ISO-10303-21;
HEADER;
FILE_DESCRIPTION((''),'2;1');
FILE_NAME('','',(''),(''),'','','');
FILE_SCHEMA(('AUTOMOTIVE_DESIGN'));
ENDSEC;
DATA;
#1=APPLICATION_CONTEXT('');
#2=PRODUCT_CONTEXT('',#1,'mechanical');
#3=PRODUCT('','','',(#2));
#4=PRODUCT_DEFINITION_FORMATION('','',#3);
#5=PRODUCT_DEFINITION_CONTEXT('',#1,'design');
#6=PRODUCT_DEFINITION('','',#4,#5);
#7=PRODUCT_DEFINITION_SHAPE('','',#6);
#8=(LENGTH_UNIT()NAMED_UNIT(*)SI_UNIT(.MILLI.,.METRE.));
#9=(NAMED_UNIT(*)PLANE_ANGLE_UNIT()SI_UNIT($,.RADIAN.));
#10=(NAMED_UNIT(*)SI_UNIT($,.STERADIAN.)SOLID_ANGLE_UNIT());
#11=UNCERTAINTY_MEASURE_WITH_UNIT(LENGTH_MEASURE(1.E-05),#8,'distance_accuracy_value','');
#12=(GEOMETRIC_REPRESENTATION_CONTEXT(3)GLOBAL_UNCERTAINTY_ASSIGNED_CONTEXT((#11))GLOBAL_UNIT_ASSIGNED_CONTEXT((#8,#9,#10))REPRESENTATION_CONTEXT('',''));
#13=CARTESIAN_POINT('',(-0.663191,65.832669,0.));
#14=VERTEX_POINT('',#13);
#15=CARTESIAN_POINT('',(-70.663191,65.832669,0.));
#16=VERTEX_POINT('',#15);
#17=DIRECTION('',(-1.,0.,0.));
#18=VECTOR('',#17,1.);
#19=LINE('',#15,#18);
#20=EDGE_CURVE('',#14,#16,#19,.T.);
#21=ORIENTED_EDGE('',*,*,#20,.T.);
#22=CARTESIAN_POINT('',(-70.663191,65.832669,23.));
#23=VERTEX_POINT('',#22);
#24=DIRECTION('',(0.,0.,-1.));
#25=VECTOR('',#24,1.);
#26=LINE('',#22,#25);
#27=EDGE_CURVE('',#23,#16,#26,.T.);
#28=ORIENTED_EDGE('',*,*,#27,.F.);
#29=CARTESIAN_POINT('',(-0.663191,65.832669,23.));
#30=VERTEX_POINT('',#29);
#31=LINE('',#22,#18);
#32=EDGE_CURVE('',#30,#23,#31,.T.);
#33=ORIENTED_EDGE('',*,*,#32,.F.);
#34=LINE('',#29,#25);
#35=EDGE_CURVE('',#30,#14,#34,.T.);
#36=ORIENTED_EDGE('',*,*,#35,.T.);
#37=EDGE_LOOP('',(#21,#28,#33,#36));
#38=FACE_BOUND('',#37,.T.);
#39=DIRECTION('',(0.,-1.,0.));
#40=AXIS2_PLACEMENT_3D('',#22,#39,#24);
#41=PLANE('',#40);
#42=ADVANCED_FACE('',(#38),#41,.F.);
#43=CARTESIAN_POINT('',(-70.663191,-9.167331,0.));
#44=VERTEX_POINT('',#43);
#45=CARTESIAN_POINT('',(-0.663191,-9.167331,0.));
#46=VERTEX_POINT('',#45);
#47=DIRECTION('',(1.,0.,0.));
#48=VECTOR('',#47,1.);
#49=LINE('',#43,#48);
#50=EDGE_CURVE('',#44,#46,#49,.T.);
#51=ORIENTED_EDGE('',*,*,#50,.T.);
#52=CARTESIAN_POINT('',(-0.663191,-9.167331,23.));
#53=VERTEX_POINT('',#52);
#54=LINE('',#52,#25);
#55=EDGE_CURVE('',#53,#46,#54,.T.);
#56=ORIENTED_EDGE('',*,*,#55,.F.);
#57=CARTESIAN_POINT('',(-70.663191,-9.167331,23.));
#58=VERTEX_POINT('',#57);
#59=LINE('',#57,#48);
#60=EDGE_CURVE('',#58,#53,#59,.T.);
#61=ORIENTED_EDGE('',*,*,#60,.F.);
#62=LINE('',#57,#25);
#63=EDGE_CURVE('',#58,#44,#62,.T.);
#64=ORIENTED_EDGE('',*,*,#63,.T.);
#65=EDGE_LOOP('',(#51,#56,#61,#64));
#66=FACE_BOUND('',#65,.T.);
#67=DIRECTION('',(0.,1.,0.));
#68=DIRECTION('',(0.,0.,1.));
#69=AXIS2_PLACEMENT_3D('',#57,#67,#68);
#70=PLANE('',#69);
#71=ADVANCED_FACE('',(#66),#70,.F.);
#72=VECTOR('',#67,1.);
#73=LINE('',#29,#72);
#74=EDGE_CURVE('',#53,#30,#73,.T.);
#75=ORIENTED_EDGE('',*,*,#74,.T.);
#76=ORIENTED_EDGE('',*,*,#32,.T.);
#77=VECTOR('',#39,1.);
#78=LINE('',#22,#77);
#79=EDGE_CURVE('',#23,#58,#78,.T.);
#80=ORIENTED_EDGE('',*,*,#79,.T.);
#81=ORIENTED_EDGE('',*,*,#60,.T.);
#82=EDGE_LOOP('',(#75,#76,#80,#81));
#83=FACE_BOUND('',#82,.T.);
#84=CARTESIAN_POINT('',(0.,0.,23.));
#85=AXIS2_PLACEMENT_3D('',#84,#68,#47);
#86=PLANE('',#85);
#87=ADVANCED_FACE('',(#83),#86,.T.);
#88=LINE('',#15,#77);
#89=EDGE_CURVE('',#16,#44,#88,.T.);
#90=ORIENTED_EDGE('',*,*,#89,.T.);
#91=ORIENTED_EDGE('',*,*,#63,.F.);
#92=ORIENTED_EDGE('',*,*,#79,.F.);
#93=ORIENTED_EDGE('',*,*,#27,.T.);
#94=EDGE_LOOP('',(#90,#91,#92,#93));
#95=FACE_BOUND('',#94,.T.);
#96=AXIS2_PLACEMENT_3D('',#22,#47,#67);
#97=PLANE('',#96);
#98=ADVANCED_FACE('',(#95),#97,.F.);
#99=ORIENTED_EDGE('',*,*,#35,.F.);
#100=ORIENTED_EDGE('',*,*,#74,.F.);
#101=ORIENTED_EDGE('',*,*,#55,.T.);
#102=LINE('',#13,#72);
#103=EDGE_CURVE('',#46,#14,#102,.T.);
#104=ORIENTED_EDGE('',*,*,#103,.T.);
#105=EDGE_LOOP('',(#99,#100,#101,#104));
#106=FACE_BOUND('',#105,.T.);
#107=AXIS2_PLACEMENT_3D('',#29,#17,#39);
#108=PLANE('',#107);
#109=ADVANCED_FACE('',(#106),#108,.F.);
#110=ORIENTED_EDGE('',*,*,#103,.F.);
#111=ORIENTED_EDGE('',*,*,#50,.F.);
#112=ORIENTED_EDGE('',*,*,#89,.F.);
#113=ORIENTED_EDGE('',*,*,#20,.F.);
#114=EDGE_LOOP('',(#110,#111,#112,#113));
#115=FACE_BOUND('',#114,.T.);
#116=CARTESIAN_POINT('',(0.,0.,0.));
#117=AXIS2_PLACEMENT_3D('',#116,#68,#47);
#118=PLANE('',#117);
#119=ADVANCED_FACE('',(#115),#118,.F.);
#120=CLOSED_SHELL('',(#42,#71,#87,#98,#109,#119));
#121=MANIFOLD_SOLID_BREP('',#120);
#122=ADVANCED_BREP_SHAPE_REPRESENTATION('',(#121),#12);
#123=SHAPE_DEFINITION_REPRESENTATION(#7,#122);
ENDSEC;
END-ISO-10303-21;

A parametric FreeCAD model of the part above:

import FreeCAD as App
import Part
import Sketcher

V = App.Vector

doc = App.newDocument("Part")
body = doc.addObject("PartDesign::Body", "Body")

sketch1 = body.newObject("Sketcher::SketchObject", "Sketch")
sketch1.AttachmentSupport = (doc.getObject("XY_Plane"), [""])
sketch1.MapMode = "FlatFace"
sketch1.addGeometry([
    Part.LineSegment(V(-71, 66, 0), V(-71, -9, 0)),
    Part.LineSegment(V(-71, -9, 0), V(-1, -9, 0)),
    Part.LineSegment(V(-1, -9, 0), V(-1, 66, 0)),
    Part.LineSegment(V(-1, 66, 0), V(-71, 66, 0)),
], False)
sketch1.addConstraint([
    Sketcher.Constraint("Coincident", 0, 2, 1, 1),
    Sketcher.Constraint("Coincident", 1, 2, 2, 1),
    Sketcher.Constraint("Coincident", 2, 2, 3, 1),
    Sketcher.Constraint("Coincident", 3, 2, 0, 1),
    Sketcher.Constraint("Vertical", 0),
    Sketcher.Constraint("Horizontal", 1),
    Sketcher.Constraint("Vertical", 2),
    Sketcher.Constraint("Horizontal", 3),
    Sketcher.Constraint("DistanceX", 1, 1, 1, 2, 70.0),
    Sketcher.Constraint("DistanceY", 0, 2, 0, 1, 75.0),
    Sketcher.Constraint("DistanceX", 0, 2, -1, 1, 70.663191),
    Sketcher.Constraint("DistanceY", 0, 2, -1, 1, 9.167331),
])
pad1 = body.newObject("PartDesign::Pad", "Pad")
pad1.Profile = sketch1
pad1.Length = 23

doc.recompute()
